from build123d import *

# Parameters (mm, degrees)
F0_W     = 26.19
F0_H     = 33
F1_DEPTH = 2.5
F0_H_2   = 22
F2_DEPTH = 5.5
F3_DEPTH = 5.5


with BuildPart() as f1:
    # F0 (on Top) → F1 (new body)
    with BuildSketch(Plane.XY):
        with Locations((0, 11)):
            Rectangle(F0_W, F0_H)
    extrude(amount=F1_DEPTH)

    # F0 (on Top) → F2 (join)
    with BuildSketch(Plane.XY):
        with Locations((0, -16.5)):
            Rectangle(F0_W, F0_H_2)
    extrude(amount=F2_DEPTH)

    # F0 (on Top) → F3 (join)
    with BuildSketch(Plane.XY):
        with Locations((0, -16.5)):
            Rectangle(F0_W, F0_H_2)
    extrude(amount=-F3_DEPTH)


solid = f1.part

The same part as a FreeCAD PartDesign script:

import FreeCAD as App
import Part
import Sketcher


def add_polygon(sketch, points):
    """Adds a closed chain of lines whose ends are joined by coincident constraints."""
    first, n = sketch.GeometryCount, len(points)
    for a, b in zip(points, points[1:] + points[:1]):
        sketch.addGeometry(Part.LineSegment(App.Vector(*a, 0), App.Vector(*b, 0)), False)
    for i in range(n):
        sketch.addConstraint(Sketcher.Constraint("Coincident", first + i, 2, first + (i + 1) % n, 1))

doc = App.newDocument("Part")
body = doc.addObject("PartDesign::Body", "Body")

sketch1 = doc.addObject("Sketcher::SketchObject", "Sketch")
body.addObject(sketch1)
sketch1.AttachmentSupport = (doc.XY_Plane, [""])
sketch1.MapMode = "FlatFace"
add_polygon(sketch1, [(-13.095, 27.5), (-13.095, -5.5), (13.095, -5.5), (13.095, 27.5)])
sketch1.addConstraint([
    Sketcher.Constraint("Vertical", 0),
    Sketcher.Constraint("Horizontal", 1),
    Sketcher.Constraint("Vertical", 2),
    Sketcher.Constraint("Horizontal", 3),
    Sketcher.Constraint("DistanceY", 0, 2, 0, 1, 33.0),
    Sketcher.Constraint("DistanceX", 1, 1, 1, 2, 26.19),
    Sketcher.Constraint("DistanceY", 0, 2, -1, 1, 5.5),
    Sketcher.Constraint("DistanceX", 0, 2, -1, 1, 13.095),
])
pad1 = doc.addObject("PartDesign::Pad", "Pad")
body.addObject(pad1)
pad1.Profile = sketch1
pad1.Length = 2.5

sketch2 = doc.addObject("Sketcher::SketchObject", "Sketch001")
body.addObject(sketch2)
sketch2.AttachmentSupport = (doc.XY_Plane, [""])
sketch2.MapMode = "FlatFace"
add_polygon(sketch2, [(-13.095, -5.5), (-13.095, -27.5), (13.095, -27.5), (13.095, -5.5)])
sketch2.addConstraint([
    Sketcher.Constraint("Vertical", 0),
    Sketcher.Constraint("Horizontal", 1),
    Sketcher.Constraint("Vertical", 2),
    Sketcher.Constraint("Horizontal", 3),
    Sketcher.Constraint("DistanceY", 0, 2, 0, 1, 22.0),
    Sketcher.Constraint("DistanceX", 1, 1, 1, 2, 26.19),
    Sketcher.Constraint("DistanceY", 0, 2, -1, 1, 27.5),
    Sketcher.Constraint("DistanceX", 0, 2, -1, 1, 13.095),
])
pad2 = doc.addObject("PartDesign::Pad", "Pad001")
body.addObject(pad2)
pad2.Profile = sketch2
pad2.Length = 5.5

sketch3 = doc.addObject("Sketcher::SketchObject", "Sketch002")
body.addObject(sketch3)
sketch3.AttachmentSupport = (doc.XY_Plane, [""])
sketch3.MapMode = "FlatFace"
add_polygon(sketch3, [(-13.095, -5.5), (-13.095, -27.5), (13.095, -27.5), (13.095, -5.5)])
sketch3.addConstraint([
    Sketcher.Constraint("Vertical", 0),
    Sketcher.Constraint("Horizontal", 1),
    Sketcher.Constraint("Vertical", 2),
    Sketcher.Constraint("Horizontal", 3),
    Sketcher.Constraint("DistanceY", 0, 2, 0, 1, 22.0),
    Sketcher.Constraint("DistanceX", 1, 1, 1, 2, 26.19),
    Sketcher.Constraint("DistanceY", 0, 2, -1, 1, 27.5),
    Sketcher.Constraint("DistanceX", 0, 2, -1, 1, 13.095),
])
pad3 = doc.addObject("PartDesign::Pad", "Pad002")
body.addObject(pad3)
pad3.Profile = sketch3
pad3.Length = 5.5
pad3.Reversed = True

doc.recompute()
